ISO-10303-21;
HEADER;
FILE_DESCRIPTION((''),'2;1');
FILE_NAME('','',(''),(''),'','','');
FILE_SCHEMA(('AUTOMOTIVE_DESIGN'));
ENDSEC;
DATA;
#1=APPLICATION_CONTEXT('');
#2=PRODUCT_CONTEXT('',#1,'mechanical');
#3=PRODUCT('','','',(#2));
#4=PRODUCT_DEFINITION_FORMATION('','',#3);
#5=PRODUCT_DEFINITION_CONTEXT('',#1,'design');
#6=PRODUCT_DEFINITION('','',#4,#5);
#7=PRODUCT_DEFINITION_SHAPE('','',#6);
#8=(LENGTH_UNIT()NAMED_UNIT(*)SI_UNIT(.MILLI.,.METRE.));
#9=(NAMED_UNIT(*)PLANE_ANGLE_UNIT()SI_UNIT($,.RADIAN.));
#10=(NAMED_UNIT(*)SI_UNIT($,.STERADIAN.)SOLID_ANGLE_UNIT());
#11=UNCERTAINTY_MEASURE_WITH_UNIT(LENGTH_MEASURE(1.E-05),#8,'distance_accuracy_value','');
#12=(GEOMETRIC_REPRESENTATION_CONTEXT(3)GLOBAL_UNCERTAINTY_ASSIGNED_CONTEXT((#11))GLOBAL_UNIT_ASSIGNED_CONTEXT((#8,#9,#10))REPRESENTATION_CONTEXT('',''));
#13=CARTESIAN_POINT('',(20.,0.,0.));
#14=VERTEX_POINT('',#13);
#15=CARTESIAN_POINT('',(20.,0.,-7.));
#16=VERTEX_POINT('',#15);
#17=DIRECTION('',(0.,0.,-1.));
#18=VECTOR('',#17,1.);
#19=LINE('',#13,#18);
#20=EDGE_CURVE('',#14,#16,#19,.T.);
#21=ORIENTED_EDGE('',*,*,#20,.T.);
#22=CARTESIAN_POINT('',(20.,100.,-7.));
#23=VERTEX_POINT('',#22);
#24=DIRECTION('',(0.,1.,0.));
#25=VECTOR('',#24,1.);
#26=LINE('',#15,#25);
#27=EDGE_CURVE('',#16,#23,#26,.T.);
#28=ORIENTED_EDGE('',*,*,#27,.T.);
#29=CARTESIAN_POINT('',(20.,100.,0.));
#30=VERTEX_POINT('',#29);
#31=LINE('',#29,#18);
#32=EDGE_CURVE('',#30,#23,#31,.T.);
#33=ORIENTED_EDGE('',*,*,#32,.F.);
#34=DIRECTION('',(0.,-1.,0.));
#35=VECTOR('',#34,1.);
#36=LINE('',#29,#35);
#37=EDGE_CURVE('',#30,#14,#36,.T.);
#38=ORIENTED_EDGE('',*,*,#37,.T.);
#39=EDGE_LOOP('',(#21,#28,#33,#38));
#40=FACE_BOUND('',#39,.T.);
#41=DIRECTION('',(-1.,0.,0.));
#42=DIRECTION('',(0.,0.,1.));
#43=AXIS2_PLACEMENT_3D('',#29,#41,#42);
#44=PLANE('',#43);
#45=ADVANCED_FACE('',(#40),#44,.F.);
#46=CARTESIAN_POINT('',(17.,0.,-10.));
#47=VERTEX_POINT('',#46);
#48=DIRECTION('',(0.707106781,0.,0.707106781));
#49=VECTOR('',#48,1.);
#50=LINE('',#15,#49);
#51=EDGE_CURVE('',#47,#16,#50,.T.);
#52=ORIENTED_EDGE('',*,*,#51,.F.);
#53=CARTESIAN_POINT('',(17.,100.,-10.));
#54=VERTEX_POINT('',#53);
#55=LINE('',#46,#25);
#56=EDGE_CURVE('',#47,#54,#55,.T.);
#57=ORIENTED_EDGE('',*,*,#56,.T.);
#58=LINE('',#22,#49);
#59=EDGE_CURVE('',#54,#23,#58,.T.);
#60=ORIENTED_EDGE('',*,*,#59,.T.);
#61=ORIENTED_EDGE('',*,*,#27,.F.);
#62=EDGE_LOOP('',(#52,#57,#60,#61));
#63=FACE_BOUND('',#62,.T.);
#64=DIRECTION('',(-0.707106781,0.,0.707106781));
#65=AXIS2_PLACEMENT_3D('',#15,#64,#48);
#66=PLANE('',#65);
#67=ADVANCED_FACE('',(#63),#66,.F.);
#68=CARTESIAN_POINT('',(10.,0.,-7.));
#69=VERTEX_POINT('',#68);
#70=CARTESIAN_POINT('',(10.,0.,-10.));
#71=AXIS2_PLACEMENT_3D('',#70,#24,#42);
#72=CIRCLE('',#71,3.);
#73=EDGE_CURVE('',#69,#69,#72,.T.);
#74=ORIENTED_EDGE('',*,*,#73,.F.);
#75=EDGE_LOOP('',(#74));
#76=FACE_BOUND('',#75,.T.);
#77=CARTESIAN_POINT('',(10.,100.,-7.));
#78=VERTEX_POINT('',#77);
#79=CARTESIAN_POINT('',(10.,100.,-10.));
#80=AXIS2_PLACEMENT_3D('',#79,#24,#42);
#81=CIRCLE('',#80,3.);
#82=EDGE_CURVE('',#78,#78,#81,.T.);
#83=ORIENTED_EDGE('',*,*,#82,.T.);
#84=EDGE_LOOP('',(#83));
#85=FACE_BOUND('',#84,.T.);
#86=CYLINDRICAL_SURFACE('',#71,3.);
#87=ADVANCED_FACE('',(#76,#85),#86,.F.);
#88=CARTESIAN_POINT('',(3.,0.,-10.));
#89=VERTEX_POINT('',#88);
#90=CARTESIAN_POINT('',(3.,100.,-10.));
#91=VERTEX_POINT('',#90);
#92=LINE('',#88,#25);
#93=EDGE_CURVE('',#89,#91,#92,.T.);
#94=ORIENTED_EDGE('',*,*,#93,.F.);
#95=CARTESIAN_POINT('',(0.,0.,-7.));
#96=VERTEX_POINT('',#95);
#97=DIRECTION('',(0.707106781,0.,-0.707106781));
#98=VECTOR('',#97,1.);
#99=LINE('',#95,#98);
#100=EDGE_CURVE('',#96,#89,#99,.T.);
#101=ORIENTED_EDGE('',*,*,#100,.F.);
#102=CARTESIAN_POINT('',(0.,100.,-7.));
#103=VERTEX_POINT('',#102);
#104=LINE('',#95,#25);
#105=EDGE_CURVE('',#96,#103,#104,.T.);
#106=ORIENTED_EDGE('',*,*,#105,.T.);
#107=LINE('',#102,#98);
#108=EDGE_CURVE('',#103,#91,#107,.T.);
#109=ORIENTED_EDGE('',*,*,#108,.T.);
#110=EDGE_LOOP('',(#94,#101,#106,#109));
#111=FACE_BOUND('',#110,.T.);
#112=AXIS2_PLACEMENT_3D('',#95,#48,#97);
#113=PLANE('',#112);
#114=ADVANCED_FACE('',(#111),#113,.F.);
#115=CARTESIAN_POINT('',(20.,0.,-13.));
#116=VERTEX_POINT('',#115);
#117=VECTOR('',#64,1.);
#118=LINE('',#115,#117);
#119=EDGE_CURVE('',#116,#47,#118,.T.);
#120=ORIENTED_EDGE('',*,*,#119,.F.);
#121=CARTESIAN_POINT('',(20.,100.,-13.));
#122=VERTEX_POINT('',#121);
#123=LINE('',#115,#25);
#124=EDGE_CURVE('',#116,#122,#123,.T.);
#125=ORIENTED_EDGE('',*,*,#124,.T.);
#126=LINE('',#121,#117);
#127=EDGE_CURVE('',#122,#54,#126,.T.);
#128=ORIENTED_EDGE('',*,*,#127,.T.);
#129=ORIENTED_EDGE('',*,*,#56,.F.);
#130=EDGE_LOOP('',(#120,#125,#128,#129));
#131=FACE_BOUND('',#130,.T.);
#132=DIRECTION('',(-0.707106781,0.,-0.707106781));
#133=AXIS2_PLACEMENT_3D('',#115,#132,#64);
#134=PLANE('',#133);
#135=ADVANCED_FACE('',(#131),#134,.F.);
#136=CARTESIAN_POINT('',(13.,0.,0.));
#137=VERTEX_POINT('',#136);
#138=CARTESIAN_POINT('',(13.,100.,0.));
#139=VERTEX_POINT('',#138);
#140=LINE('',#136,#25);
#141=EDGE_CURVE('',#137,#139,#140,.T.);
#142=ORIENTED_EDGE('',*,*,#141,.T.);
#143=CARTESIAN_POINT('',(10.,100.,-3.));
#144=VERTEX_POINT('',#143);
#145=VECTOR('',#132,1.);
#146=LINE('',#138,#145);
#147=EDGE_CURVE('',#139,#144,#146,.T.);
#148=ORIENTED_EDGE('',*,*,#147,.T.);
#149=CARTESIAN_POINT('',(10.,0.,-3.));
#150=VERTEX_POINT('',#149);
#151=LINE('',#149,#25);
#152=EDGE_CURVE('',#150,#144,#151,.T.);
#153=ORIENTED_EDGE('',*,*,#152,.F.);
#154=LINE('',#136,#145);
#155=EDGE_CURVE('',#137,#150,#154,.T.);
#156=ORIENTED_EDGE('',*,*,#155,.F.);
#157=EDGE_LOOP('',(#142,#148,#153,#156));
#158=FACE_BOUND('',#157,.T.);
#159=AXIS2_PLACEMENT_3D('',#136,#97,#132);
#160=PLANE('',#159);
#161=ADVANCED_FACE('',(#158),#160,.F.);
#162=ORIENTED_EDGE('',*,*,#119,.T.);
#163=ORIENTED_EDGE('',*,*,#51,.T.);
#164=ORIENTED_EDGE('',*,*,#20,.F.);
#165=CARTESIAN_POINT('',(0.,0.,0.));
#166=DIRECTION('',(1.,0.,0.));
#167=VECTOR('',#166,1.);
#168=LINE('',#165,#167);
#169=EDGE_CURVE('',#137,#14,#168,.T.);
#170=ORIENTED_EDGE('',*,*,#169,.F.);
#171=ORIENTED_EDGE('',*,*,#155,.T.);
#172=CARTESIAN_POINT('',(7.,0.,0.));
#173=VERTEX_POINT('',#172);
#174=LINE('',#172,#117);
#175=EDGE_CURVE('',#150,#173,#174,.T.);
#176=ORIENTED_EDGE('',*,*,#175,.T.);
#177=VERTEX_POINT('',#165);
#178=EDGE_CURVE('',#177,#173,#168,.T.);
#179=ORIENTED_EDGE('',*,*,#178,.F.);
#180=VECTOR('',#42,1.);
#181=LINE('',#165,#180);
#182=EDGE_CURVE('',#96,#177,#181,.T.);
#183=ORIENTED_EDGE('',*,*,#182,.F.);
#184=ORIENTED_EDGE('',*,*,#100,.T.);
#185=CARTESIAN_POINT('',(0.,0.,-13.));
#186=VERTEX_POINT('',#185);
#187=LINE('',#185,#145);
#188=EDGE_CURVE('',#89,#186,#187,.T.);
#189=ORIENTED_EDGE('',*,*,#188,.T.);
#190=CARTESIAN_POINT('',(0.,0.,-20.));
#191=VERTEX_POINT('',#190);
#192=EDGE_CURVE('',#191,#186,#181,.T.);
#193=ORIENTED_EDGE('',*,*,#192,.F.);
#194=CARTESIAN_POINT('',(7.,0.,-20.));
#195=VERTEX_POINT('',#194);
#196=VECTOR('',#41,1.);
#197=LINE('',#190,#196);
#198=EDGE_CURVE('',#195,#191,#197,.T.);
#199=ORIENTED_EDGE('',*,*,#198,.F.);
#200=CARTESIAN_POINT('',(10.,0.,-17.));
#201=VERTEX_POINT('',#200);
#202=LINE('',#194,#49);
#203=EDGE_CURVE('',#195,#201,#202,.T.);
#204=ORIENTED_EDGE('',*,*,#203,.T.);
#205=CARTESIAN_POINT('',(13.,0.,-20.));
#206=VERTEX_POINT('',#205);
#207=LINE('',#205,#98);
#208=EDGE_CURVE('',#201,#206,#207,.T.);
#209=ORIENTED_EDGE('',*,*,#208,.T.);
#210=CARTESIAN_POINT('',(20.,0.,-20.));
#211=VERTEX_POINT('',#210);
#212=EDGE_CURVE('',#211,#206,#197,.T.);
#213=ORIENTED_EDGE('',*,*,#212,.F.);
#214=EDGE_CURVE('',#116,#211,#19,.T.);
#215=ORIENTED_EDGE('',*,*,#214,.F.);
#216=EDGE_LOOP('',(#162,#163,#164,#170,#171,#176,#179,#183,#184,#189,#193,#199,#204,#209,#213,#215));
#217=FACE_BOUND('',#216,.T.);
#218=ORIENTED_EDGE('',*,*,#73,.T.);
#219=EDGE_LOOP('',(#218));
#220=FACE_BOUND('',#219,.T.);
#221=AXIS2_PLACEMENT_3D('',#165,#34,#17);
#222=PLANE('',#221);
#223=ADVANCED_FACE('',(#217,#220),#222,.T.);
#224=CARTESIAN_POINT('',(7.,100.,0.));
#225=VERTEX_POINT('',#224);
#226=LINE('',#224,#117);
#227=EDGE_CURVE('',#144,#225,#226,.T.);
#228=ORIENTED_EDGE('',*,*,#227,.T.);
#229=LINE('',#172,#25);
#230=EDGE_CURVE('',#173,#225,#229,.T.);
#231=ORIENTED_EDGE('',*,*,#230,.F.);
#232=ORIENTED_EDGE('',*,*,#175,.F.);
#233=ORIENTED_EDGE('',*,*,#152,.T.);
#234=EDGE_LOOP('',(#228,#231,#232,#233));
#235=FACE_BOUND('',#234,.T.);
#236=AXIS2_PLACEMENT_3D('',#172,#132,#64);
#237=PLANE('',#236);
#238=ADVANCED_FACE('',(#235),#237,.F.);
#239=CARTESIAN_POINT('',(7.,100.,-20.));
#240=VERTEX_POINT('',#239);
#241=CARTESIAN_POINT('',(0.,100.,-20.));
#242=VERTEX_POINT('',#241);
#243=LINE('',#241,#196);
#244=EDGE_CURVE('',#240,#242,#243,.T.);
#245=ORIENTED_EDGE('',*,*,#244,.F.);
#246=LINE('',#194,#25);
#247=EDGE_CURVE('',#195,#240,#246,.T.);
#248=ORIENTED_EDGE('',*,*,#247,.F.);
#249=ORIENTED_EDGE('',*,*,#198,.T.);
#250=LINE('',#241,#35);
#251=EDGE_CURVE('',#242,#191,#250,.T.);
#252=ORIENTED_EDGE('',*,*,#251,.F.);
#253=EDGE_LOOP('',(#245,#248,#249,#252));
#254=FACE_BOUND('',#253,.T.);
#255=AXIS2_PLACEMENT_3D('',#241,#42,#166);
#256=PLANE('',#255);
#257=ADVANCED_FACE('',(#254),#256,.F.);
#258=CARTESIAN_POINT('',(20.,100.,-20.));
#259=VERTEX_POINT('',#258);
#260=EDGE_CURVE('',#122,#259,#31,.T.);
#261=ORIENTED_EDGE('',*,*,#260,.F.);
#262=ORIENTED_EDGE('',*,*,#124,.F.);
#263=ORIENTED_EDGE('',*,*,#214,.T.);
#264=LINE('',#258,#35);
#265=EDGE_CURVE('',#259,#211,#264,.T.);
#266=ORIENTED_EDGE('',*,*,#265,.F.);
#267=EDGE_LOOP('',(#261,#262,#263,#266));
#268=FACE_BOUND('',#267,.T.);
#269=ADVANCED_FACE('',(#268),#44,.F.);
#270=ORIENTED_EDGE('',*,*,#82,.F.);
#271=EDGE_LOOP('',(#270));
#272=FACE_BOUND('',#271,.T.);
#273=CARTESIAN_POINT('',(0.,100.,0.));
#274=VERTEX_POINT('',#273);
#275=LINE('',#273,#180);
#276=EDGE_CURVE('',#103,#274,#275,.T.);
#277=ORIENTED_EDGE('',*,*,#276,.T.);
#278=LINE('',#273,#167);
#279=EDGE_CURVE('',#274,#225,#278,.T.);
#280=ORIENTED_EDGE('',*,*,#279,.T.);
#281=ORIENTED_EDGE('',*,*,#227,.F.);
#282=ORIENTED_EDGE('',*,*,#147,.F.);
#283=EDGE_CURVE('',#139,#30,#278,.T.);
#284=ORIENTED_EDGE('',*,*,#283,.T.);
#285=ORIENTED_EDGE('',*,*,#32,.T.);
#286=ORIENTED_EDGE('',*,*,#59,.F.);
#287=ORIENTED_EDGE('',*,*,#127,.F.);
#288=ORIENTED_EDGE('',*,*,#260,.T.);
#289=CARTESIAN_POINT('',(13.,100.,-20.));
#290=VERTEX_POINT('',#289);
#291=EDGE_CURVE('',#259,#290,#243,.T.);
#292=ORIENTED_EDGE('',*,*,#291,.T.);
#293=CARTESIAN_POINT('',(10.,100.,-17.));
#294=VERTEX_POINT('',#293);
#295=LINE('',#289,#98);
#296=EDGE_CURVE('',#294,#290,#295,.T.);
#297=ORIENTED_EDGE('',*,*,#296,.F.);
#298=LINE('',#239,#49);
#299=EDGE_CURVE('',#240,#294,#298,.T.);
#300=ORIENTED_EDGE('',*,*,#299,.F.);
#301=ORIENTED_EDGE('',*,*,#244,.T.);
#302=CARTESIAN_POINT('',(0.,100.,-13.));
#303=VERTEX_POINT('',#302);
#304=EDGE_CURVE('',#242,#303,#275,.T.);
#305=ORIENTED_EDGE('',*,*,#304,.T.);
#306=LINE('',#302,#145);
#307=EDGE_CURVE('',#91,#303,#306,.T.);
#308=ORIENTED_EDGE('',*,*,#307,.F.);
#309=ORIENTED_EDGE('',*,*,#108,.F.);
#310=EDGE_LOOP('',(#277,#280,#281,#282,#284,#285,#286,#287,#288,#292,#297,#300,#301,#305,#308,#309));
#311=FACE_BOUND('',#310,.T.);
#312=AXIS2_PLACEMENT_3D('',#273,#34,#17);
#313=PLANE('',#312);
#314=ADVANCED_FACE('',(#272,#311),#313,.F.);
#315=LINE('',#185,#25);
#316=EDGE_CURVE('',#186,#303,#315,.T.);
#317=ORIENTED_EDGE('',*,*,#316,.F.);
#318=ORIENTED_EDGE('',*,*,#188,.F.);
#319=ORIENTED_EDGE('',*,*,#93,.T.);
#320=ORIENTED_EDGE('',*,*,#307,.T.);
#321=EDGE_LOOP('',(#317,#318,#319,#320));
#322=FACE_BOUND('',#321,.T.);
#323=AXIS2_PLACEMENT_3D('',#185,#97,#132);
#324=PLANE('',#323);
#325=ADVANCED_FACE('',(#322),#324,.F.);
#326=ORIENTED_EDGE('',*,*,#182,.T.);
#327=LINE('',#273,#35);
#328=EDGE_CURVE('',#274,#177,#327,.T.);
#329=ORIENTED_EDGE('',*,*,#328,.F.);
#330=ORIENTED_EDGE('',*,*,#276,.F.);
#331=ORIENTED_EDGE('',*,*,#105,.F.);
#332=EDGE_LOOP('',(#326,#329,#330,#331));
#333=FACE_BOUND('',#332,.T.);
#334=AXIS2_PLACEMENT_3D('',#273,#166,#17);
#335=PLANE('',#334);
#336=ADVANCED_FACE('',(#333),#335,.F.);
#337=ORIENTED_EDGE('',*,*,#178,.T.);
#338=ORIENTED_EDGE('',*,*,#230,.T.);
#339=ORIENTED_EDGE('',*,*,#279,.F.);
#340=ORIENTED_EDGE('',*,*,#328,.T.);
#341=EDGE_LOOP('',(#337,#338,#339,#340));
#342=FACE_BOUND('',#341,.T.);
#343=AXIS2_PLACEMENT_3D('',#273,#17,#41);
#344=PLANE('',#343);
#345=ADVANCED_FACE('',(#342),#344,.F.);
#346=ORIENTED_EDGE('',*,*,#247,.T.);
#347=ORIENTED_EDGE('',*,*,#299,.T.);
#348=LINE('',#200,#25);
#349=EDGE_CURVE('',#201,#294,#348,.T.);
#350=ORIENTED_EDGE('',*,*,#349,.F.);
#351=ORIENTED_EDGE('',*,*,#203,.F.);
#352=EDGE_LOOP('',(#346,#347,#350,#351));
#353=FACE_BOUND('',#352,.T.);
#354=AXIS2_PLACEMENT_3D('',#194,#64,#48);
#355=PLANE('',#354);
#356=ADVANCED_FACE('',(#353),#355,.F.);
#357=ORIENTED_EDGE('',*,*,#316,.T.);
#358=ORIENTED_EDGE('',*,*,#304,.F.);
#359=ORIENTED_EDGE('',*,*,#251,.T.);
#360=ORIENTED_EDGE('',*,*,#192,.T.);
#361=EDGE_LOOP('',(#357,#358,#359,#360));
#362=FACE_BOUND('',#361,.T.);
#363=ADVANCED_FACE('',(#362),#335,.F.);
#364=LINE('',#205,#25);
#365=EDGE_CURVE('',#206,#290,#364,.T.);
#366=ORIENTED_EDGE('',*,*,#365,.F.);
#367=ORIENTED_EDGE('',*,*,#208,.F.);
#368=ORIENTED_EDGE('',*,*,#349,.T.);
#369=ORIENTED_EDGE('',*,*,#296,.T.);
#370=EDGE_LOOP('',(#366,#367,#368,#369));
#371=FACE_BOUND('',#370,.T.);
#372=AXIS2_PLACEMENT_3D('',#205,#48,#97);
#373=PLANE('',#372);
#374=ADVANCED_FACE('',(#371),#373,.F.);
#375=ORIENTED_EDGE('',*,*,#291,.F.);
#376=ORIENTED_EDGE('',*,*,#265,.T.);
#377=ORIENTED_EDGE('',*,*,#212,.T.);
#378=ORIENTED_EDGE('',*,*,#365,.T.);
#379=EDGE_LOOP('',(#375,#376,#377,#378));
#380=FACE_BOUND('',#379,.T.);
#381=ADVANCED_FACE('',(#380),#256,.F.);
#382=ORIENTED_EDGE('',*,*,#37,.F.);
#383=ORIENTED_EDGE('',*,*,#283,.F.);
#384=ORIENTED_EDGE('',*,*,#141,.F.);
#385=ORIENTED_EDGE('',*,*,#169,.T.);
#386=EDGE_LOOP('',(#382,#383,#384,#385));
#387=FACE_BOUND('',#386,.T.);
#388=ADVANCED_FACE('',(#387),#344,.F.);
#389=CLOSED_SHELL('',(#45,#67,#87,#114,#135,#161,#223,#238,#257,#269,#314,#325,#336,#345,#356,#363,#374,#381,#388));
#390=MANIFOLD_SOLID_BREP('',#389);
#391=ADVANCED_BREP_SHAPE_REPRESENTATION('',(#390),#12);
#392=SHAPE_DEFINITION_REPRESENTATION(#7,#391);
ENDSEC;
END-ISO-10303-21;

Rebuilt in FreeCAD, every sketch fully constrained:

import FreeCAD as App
import Part
import Sketcher

V = App.Vector
Q = App.Units.Quantity

doc = App.newDocument("Part")
body = doc.addObject("PartDesign::Body", "Body")

# Sketch on XZ plane
sketch1 = body.newObject("Sketcher::SketchObject", "Sketch")
sketch1.AttachmentSupport = (doc.getObject("XZ_Plane"), [""])
sketch1.MapMode = "FlatFace"
sketch1.addGeometry([
    Part.LineSegment(V(0, -20, 0), V(0, 0, 0)),
    Part.LineSegment(V(0, 0, 0), V(20, 0, 0)),
    Part.LineSegment(V(20, 0, 0), V(20, -20, 0)),
    Part.LineSegment(V(20, -20, 0), V(0, -20, 0)),
], False)
sketch1.addConstraint([
    Sketcher.Constraint("Coincident", 0, 2, 1, 1),
    Sketcher.Constraint("Coincident", 1, 2, 2, 1),
    Sketcher.Constraint("Coincident", 2, 2, 3, 1),
    Sketcher.Constraint("Coincident", 3, 2, 0, 1),
    Sketcher.Constraint("Vertical", 0),
    Sketcher.Constraint("Horizontal", 1),
    Sketcher.Constraint("Vertical", 2),
    Sketcher.Constraint("Horizontal", 3),
    Sketcher.Constraint("Coincident", 0, 2, -1, 1),
    Sketcher.Constraint("Equal", 3, 0),
    Sketcher.Constraint("DistanceX", 1, 1, 1, 2, Q("20 mm")),
])
pad1 = body.newObject("PartDesign::Pad", "Pad")
pad1.Profile = sketch1
pad1.Length = 100
pad1.Reversed = True

# Sketch on XZ plane
sketch2 = body.newObject("Sketcher::SketchObject", "Sketch001")
sketch2.AttachmentSupport = (doc.getObject("XZ_Plane"), [""])
sketch2.MapMode = "FlatFace"
sketch2.AttachmentOffset = App.Placement(V(0, 0, -100), App.Rotation())
sketch2.addGeometry([
    Part.LineSegment(V(7, -20, 0), V(10, -17, 0)),  # 0
    Part.LineSegment(V(10, -17, 0), V(13, -20, 0)),  # 1
    Part.LineSegment(V(13, -20, 0), V(7, -20, 0)),  # 2
    Part.LineSegment(V(20, -13, 0), V(17, -10, 0)),  # 3
    Part.LineSegment(V(17, -10, 0), V(20, -7, 0)),  # 4
    Part.LineSegment(V(20, -7, 0), V(20, -13, 0)),  # 5
    Part.LineSegment(V(0, -13, 0), V(0, -7, 0)),  # 6
    Part.LineSegment(V(0, -7, 0), V(3, -10, 0)),  # 7
    Part.LineSegment(V(3, -10, 0), V(0, -13, 0)),  # 8
    Part.LineSegment(V(7, 0, 0), V(13, 0, 0)),  # 9
    Part.LineSegment(V(13, 0, 0), V(10, -3, 0)),  # 10
    Part.LineSegment(V(10, -3, 0), V(7, 0, 0)),  # 11
], False)
sketch2.addConstraint([
    Sketcher.Constraint("Coincident", 0, 2, 1, 1),
    Sketcher.Constraint("Coincident", 1, 2, 2, 1),
    Sketcher.Constraint("Coincident", 2, 2, 0, 1),
    Sketcher.Constraint("Coincident", 3, 2, 4, 1),
    Sketcher.Constraint("Coincident", 4, 2, 5, 1),
    Sketcher.Constraint("Coincident", 5, 2, 3, 1),
    Sketcher.Constraint("Coincident", 6, 2, 7, 1),
    Sketcher.Constraint("Coincident", 7, 2, 8, 1),
    Sketcher.Constraint("Coincident", 8, 2, 6, 1),
    Sketcher.Constraint("Coincident", 9, 2, 10, 1),
    Sketcher.Constraint("Coincident", 10, 2, 11, 1),
    Sketcher.Constraint("Coincident", 11, 2, 9, 1),
    Sketcher.Constraint("Horizontal", 2),
    Sketcher.Constraint("Vertical", 5),
    Sketcher.Constraint("Vertical", 6),
    Sketcher.Constraint("Horizontal", 9),
    Sketcher.Constraint("PointOnObject", 6, 2, -2),
    Sketcher.Constraint("PointOnObject", 9, 2, -1),
    Sketcher.Constraint("Perpendicular", 0, 1),
    Sketcher.Constraint("Parallel", 1, 3),
    Sketcher.Constraint("Perpendicular", 3, 4),
    Sketcher.Constraint("Perpendicular", 4, 7),
    Sketcher.Constraint("Perpendicular", 7, 8),
    Sketcher.Constraint("Parallel", 8, 10),
    Sketcher.Constraint("Perpendicular", 10, 11),
    Sketcher.Constraint("Horizontal", 4, 2, 6, 2),
    Sketcher.Constraint("Horizontal", 3, 2, 7, 2),
    Sketcher.Constraint("Horizontal", 5, 2, 8, 2),
    Sketcher.Constraint("Vertical", 1, 2, 9, 2),
    Sketcher.Constraint("Vertical", 0, 2, 10, 2),
    Sketcher.Constraint("Equal", 9, 5),
    Sketcher.Constraint("DistanceX", 2, 2, 2, 1, Q("6 mm")),
    Sketcher.Constraint("DistanceX", -1, 1, 0, 2, Q("10 mm")),
    Sketcher.Constraint("DistanceY", 0, 2, -1, 1, Q("17 mm")),
    Sketcher.Constraint("DistanceX", -1, 1, 3, 2, Q("17 mm")),
    Sketcher.Constraint("DistanceY", 3, 2, -1, 1, Q("10 mm")),
])
pocket1 = body.newObject("PartDesign::Pocket", "Pocket")
pocket1.Profile = sketch2
pocket1.Type = "ThroughAll"
pocket1.Reversed = True

# Sketch on XZ plane
sketch3 = body.newObject("Sketcher::SketchObject", "Sketch002")
sketch3.AttachmentSupport = (doc.getObject("XZ_Plane"), [""])
sketch3.MapMode = "FlatFace"
sketch3.AttachmentOffset = App.Placement(V(0, 0, -100), App.Rotation())
sketch3.addGeometry(Part.Circle(V(10, -10, 0), V(0, 0, 1), 3), False)
sketch3.addConstraint([
    Sketcher.Constraint("Diameter", 0, Q("6 mm")),
    Sketcher.Constraint("DistanceX", -1, 1, 0, 3, Q("10 mm")),
    Sketcher.Constraint("DistanceY", 0, 3, -1, 1, Q("10 mm")),
])
pocket2 = body.newObject("PartDesign::Pocket", "Pocket001")
pocket2.Profile = sketch3
pocket2.Type = "ThroughAll"
pocket2.Reversed = True

doc.recompute()
